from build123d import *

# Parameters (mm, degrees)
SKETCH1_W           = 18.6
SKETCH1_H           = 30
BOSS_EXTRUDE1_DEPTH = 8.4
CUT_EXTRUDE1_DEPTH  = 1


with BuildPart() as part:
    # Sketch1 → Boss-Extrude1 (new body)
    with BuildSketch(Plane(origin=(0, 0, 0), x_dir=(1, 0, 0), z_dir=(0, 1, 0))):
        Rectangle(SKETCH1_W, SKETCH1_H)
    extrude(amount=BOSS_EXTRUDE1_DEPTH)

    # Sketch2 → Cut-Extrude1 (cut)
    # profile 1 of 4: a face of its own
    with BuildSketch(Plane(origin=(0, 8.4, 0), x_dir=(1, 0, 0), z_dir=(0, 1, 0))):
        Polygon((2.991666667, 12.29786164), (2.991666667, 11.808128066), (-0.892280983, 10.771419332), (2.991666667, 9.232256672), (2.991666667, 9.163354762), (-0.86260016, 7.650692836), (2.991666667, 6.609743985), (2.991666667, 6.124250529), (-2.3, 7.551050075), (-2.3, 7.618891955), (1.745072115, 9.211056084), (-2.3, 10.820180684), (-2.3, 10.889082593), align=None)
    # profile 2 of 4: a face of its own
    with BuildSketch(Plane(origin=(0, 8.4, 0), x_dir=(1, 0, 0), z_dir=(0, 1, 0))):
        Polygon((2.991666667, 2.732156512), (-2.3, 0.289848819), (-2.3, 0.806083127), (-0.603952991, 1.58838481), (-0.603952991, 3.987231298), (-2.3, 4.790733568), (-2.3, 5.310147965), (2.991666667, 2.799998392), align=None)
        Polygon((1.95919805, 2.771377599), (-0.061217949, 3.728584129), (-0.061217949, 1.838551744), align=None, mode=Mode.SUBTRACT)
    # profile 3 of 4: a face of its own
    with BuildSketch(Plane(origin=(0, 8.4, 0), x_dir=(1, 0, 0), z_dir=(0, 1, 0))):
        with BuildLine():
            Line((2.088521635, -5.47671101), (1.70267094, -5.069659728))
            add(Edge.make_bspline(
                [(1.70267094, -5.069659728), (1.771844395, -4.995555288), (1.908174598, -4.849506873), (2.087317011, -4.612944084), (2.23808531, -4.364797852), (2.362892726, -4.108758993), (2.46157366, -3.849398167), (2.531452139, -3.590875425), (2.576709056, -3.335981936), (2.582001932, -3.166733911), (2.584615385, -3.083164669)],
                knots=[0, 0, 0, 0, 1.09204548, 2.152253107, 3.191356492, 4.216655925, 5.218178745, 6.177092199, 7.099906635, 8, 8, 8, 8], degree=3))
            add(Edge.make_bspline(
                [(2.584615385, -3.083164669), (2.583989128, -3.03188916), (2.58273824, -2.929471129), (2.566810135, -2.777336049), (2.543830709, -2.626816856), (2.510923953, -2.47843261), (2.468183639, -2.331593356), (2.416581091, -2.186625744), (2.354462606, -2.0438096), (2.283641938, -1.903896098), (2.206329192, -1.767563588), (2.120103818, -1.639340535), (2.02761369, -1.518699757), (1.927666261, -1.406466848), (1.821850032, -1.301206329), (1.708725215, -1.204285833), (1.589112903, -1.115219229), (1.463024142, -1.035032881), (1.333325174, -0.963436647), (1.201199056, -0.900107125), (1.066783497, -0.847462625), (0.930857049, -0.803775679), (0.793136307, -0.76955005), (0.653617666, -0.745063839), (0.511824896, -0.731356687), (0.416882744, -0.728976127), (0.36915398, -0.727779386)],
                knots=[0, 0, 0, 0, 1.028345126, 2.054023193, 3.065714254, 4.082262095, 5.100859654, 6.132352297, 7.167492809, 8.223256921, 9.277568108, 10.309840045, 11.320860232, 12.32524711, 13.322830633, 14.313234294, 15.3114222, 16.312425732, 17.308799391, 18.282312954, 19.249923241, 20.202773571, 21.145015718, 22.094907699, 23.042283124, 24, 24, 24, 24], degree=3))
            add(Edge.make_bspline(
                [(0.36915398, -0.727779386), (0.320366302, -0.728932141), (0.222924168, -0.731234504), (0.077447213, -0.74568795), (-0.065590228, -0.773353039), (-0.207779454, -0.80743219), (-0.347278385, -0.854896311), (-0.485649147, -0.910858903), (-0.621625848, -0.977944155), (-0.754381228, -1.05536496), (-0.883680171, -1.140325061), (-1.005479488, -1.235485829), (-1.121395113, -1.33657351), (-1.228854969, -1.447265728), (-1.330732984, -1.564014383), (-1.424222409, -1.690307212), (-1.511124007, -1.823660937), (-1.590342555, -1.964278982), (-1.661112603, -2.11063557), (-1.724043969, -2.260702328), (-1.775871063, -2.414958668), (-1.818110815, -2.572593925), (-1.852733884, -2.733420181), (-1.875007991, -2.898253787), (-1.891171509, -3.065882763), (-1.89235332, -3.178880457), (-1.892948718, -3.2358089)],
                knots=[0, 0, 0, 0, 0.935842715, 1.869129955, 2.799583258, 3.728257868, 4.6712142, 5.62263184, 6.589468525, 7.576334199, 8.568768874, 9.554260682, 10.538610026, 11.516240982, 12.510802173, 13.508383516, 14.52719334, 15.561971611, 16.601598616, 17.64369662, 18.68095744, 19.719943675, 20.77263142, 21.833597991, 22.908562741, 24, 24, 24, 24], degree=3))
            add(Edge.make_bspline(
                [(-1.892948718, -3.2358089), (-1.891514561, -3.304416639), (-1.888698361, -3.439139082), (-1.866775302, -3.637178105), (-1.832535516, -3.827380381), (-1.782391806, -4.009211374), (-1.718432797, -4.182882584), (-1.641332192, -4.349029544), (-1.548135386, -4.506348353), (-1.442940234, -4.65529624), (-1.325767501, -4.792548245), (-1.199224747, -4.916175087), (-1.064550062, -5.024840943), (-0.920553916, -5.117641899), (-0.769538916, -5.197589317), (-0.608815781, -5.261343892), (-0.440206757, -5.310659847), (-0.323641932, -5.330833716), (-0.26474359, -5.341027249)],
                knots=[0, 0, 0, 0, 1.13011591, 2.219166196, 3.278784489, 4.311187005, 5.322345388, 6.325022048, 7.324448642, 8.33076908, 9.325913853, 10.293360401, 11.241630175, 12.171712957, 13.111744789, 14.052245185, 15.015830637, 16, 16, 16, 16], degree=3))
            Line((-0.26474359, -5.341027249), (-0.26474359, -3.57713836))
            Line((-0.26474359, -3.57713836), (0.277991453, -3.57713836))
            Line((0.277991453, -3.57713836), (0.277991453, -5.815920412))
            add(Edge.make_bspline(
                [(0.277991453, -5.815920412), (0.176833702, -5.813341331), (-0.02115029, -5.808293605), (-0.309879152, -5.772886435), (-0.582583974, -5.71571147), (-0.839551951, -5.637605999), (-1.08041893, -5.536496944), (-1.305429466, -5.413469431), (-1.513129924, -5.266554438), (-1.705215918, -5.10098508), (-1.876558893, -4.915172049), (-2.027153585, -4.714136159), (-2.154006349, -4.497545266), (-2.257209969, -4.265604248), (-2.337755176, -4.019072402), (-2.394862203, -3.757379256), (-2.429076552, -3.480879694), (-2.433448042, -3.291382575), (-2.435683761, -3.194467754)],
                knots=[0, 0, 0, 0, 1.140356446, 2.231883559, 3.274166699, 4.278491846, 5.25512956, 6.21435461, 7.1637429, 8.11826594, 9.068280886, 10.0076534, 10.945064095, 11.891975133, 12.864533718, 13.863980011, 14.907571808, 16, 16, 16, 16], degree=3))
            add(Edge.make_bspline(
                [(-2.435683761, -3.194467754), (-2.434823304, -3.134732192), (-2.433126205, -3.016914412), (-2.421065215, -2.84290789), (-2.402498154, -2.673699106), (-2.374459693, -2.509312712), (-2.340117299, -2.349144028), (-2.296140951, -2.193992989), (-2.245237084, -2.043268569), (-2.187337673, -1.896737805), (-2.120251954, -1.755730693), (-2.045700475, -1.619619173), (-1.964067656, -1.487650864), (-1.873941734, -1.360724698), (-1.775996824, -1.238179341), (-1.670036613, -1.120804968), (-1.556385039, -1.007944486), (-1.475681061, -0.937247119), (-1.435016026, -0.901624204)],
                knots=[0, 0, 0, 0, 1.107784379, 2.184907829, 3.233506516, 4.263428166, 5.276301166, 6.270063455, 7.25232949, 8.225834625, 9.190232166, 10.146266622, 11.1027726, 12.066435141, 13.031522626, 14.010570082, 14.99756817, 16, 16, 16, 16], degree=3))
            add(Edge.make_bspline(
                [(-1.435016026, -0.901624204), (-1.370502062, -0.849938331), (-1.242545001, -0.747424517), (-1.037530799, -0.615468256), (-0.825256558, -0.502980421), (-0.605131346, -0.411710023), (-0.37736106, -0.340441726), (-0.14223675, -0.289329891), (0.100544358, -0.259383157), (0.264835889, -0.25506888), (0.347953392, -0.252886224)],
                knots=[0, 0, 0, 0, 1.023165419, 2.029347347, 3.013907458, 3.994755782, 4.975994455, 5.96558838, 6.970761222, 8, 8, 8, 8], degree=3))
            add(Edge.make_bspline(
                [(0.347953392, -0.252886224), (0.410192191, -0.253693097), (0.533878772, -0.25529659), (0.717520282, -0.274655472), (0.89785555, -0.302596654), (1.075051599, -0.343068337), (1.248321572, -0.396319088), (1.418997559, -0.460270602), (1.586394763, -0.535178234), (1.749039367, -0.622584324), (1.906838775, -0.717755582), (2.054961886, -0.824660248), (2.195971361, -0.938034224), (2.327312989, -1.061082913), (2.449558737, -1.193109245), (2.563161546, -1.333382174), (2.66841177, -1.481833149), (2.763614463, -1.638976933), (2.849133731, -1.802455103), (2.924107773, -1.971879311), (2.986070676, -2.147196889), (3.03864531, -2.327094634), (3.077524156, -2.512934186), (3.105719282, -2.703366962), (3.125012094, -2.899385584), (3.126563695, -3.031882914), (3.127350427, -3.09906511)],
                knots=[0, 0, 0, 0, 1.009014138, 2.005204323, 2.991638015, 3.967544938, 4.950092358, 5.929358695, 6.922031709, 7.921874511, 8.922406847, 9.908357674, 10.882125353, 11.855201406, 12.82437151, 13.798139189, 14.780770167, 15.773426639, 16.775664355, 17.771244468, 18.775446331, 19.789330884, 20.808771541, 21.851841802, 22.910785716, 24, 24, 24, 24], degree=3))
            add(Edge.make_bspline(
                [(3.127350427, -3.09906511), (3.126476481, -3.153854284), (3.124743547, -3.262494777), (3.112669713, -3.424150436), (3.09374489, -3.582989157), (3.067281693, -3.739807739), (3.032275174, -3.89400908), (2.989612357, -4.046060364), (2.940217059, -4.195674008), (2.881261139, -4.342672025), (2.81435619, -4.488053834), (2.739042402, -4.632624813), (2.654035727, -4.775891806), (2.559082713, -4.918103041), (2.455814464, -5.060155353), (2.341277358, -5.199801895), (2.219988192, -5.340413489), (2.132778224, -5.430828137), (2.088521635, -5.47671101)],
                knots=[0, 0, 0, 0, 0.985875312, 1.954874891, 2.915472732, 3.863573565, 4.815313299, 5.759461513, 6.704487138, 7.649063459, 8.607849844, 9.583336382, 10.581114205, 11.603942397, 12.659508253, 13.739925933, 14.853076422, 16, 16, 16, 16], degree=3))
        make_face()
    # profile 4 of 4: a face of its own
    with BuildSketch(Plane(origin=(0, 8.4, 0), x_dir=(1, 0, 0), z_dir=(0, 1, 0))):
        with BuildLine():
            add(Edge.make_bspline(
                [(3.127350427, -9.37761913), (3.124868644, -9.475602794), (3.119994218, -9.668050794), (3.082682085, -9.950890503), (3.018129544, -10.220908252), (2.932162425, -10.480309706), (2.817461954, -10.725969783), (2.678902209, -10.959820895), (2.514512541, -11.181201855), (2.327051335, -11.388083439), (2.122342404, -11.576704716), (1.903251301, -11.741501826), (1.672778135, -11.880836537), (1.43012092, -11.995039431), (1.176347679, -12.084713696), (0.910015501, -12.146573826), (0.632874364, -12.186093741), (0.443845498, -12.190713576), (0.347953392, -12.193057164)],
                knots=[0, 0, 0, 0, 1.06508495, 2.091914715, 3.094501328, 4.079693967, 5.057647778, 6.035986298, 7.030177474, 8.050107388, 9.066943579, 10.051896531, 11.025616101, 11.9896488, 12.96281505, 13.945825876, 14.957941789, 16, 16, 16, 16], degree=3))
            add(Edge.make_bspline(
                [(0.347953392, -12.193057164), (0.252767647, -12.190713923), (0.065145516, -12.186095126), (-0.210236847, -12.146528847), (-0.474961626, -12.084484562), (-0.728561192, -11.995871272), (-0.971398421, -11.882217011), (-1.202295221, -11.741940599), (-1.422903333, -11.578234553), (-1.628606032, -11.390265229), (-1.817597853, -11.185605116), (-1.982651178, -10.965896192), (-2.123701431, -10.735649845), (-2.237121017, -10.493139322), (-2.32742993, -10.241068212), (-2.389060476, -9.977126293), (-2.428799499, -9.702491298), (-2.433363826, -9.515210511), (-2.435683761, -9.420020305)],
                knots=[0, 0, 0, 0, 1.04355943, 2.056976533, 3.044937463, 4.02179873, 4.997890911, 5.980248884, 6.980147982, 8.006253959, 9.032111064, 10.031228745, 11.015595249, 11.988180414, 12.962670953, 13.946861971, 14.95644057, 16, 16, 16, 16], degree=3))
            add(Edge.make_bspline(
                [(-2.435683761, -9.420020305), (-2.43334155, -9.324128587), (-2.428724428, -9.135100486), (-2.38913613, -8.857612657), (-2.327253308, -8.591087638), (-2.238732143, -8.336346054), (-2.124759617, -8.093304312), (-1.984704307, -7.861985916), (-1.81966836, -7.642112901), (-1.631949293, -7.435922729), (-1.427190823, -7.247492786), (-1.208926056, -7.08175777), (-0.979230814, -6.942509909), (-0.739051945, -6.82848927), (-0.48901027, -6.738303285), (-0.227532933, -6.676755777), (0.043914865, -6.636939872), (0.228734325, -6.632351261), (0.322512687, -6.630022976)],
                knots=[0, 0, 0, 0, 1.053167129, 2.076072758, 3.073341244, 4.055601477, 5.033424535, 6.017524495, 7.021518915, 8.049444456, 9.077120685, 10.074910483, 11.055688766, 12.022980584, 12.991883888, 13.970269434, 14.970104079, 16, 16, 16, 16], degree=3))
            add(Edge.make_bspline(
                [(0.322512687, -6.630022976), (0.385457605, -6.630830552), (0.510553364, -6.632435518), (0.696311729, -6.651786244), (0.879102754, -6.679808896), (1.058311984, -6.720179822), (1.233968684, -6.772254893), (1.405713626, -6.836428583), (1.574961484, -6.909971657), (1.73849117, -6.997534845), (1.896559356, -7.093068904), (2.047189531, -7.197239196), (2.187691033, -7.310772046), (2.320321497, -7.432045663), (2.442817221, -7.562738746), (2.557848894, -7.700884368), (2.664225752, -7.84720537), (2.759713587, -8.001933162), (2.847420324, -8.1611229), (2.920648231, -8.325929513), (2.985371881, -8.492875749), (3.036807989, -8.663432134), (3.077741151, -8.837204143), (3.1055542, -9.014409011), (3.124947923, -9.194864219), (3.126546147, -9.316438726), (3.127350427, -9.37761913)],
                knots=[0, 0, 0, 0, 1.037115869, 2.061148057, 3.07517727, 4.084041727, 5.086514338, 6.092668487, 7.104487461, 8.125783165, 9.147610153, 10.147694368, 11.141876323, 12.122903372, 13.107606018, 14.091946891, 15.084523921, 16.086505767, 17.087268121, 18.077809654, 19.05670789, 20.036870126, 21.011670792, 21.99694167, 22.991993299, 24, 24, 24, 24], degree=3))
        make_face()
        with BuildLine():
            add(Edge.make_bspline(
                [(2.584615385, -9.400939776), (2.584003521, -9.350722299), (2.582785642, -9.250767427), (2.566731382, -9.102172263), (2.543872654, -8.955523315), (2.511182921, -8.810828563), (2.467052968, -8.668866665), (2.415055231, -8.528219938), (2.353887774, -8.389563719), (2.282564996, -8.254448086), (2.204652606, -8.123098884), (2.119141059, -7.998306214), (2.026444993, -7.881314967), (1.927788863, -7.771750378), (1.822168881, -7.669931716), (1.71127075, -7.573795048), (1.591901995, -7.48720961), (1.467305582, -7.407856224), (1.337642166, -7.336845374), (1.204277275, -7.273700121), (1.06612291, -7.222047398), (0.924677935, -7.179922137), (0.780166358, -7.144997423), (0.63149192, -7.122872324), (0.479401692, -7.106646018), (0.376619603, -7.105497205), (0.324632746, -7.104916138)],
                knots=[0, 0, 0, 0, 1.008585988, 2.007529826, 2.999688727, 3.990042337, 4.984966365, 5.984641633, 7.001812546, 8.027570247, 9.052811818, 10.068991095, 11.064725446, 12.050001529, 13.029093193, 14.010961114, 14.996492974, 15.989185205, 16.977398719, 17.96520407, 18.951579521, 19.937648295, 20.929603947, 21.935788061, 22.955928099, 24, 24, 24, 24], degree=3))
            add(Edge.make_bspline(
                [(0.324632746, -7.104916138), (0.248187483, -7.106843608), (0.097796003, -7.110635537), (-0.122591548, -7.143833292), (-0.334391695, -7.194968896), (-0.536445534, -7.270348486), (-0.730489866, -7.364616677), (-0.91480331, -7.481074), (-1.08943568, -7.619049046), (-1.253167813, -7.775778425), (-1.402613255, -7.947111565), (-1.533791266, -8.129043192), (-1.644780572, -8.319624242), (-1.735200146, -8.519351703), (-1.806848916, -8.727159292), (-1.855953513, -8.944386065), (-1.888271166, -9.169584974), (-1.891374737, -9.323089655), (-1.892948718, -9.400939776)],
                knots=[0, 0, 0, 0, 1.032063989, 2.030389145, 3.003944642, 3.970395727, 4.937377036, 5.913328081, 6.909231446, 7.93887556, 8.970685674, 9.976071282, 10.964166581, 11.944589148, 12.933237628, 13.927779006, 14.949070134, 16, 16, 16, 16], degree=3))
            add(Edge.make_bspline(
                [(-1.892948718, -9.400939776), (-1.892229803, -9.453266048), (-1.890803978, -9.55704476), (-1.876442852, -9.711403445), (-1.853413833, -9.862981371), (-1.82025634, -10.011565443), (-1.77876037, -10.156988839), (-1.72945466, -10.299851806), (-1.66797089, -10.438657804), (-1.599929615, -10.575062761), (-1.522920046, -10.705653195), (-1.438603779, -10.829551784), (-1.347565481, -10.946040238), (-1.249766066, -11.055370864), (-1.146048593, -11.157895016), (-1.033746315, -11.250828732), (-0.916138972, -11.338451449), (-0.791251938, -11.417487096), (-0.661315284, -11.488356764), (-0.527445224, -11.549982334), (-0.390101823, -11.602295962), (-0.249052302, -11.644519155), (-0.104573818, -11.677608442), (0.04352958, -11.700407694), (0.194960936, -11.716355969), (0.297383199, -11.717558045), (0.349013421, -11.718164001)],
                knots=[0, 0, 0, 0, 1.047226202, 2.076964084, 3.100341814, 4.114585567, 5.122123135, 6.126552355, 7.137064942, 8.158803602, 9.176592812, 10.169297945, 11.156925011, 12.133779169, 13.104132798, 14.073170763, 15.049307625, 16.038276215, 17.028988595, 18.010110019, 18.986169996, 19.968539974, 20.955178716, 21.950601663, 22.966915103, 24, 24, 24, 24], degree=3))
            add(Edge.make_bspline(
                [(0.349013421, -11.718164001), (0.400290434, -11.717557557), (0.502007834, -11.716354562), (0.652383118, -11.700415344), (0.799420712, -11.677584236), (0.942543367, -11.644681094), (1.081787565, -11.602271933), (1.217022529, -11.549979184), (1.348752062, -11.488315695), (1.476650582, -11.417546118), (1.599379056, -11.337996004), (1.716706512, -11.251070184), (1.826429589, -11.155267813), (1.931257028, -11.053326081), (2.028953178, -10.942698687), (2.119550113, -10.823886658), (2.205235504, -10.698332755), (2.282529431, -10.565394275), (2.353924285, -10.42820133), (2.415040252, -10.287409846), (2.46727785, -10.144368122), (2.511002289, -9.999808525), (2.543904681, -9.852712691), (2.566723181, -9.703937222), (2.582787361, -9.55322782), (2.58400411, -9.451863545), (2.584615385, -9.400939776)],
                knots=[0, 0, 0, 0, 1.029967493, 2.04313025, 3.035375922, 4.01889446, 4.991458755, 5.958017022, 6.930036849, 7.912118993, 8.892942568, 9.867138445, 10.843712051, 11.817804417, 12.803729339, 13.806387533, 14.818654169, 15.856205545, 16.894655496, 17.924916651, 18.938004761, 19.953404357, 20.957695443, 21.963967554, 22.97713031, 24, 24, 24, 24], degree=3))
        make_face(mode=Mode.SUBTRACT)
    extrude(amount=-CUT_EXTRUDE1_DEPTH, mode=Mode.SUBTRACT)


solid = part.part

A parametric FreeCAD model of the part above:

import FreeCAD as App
import Part
import Sketcher
Q = App.Units.Quantity

doc = App.newDocument("Part")
body = doc.addObject("PartDesign::Body", "Body")

sketch1 = body.newObject("Sketcher::SketchObject", "Sketch")
sketch1.AttachmentSupport = (doc.getObject("XZ_Plane"), [""])
sketch1.MapMode = "FlatFace"
sketch1.addGeometry(Part.LineSegment(App.Vector(-9, -15, 0), App.Vector(-9, 15, 0)), False)
sketch1.addGeometry(Part.LineSegment(App.Vector(-9, 15, 0), App.Vector(9, 15, 0)), False)
sketch1.addGeometry(Part.LineSegment(App.Vector(9, 15, 0), App.Vector(9, -15, 0)), False)
sketch1.addGeometry(Part.LineSegment(App.Vector(9, -15, 0), App.Vector(-9, -15, 0)), False)
sketch1.addConstraint(Sketcher.Constraint("Coincident", 0, 2, 1, 1))
sketch1.addConstraint(Sketcher.Constraint("Coincident", 1, 2, 2, 1))
sketch1.addConstraint(Sketcher.Constraint("Coincident", 2, 2, 3, 1))
sketch1.addConstraint(Sketcher.Constraint("Coincident", 3, 2, 0, 1))
sketch1.addConstraint(Sketcher.Constraint("Vertical", 0))
sketch1.addConstraint(Sketcher.Constraint("Horizontal", 1))
sketch1.addConstraint(Sketcher.Constraint("Vertical", 2))
sketch1.addConstraint(Sketcher.Constraint("Horizontal", 3))
sketch1.addConstraint(Sketcher.Constraint("Symmetric", 0, 2, 2, 2, -1, 1))
sketch1.addConstraint(Sketcher.Constraint("DistanceY", 0, 1, 0, 2, Q("30 mm")))
sketch1.addConstraint(Sketcher.Constraint("DistanceX", 1, 1, 1, 2, Q("18.6 mm")))
pad1 = body.newObject("PartDesign::Pad", "Pad")
pad1.Profile = sketch1
pad1.Length = 8.4
pad1.Reversed = True

sketch2 = body.newObject("Sketcher::SketchObject", "Sketch001")
sketch2.AttachmentSupport = (doc.getObject("XZ_Plane"), [""])
sketch2.MapMode = "FlatFace"
sketch2.AttachmentOffset = App.Placement(App.Vector(0, 0, -8.4), App.Rotation())
sketch2.addGeometry(Part.LineSegment(App.Vector(2.991667, -11.808128, 0), App.Vector(2.991667, -12.297862, 0)), False)
sketch2.addGeometry(Part.LineSegment(App.Vector(2.991667, -12.297862, 0), App.Vector(-2.3, -10.889083, 0)), False)
sketch2.addGeometry(Part.LineSegment(App.Vector(-2.3, -10.889083, 0), App.Vector(-2.3, -10.820181, 0)), False)
sketch2.addGeometry(Part.LineSegment(App.Vector(-2.3, -10.820181, 0), App.Vector(1.745072, -9.211056, 0)), False)
sketch2.addGeometry(Part.LineSegment(App.Vector(1.745072, -9.211056, 0), App.Vector(-2.3, -7.618892, 0)), False)
sketch2.addGeometry(Part.LineSegment(App.Vector(-2.3, -7.618892, 0), App.Vector(-2.3, -7.55105, 0)), False)
sketch2.addGeometry(Part.LineSegment(App.Vector(-2.3, -7.55105, 0), App.Vector(2.991667, -6.124251, 0)), False)
sketch2.addGeometry(Part.LineSegment(App.Vector(2.991667, -6.124251, 0), App.Vector(2.991667, -6.609744, 0)), False)
sketch2.addGeometry(Part.LineSegment(App.Vector(2.991667, -6.609744, 0), App.Vector(-0.8626, -7.650693, 0)), False)
sketch2.addGeometry(Part.LineSegment(App.Vector(-0.8626, -7.650693, 0), App.Vector(2.991667, -9.163355, 0)), False)
sketch2.addGeometry(Part.LineSegment(App.Vector(2.991667, -9.163355, 0), App.Vector(2.991667, -9.232257, 0)), False)
sketch2.addGeometry(Part.LineSegment(App.Vector(2.991667, -9.232257, 0), App.Vector(-0.892281, -10.771419, 0)), False)
sketch2.addGeometry(Part.LineSegment(App.Vector(-0.892281, -10.771419, 0), App.Vector(2.991667, -11.808128, 0)), False)
sketch2.addGeometry(Part.LineSegment(App.Vector(-2.3, -0.289849, 0), App.Vector(2.991667, -2.732157, 0)), False)
sketch2.addGeometry(Part.LineSegment(App.Vector(2.991667, -2.732157, 0), App.Vector(2.991667, -2.799998, 0)), False)
sketch2.addGeometry(Part.LineSegment(App.Vector(2.991667, -2.799998, 0), App.Vector(-2.3, -5.310148, 0)), False)
sketch2.addGeometry(Part.LineSegment(App.Vector(-2.3, -5.310148, 0), App.Vector(-2.3, -4.790734, 0)), False)
sketch2.addGeometry(Part.LineSegment(App.Vector(-2.3, -4.790734, 0), App.Vector(-0.603953, -3.987231, 0)), False)
sketch2.addGeometry(Part.LineSegment(App.Vector(-0.603953, -3.987231, 0), App.Vector(-0.603953, -1.588385, 0)), False)
sketch2.addGeometry(Part.LineSegment(App.Vector(-0.603953, -1.588385, 0), App.Vector(-2.3, -0.806083, 0)), False)
sketch2.addGeometry(Part.LineSegment(App.Vector(-2.3, -0.806083, 0), App.Vector(-2.3, -0.289849, 0)), False)
sketch2.addGeometry(Part.LineSegment(App.Vector(1.959198, -2.771378, 0), App.Vector(-0.061218, -1.838552, 0)), False)
sketch2.addGeometry(Part.LineSegment(App.Vector(-0.061218, -1.838552, 0), App.Vector(-0.061218, -3.728584, 0)), False)
sketch2.addGeometry(Part.LineSegment(App.Vector(-0.061218, -3.728584, 0), App.Vector(1.959198, -2.771378, 0)), False)
sketch2.addGeometry(Part.LineSegment(App.Vector(1.702671, 5.06966, 0), App.Vector(2.088522, 5.476711, 0)), False)
sketch2.addGeometry(Part.BSplineCurve([App.Vector(3.12735, 3.099065, 0), App.Vector(3.126476, 3.153854, 0), App.Vector(3.124744, 3.262495, 0), App.Vector(3.11267, 3.42415, 0), App.Vector(3.093745, 3.582989, 0), App.Vector(3.067282, 3.739808, 0), App.Vector(3.032275, 3.894009, 0), App.Vector(2.989612, 4.04606, 0), App.Vector(2.940217, 4.195674, 0), App.Vector(2.881261, 4.342672, 0), App.Vector(2.814356, 4.488054, 0), App.Vector(2.739042, 4.632625, 0), App.Vector(2.654036, 4.775892, 0), App.Vector(2.559083, 4.918103, 0), App.Vector(2.455814, 5.060155, 0), App.Vector(2.341277, 5.199802, 0), App.Vector(2.219988, 5.340413, 0), App.Vector(2.132778, 5.430828, 0), App.Vector(2.088522, 5.476711, 0)], [4, 1, 1, 1, 1, 1, 1, 1, 1, 1, 1, 1, 1, 1, 1, 1, 4], [0, 0.985875312, 1.954874891, 2.915472732, 3.863573565, 4.815313299, 5.759461513, 6.704487138, 7.649063459, 8.607849844, 9.583336382, 10.581114205, 11.603942397, 12.659508253, 13.739925933, 14.853076422, 16], False, 3, [1, 1, 1, 1, 1, 1, 1, 1, 1, 1, 1, 1, 1, 1, 1, 1, 1, 1, 1], False), False)
sketch2.addGeometry(Part.BSplineCurve([App.Vector(0.347953, 0.252886, 0), App.Vector(0.410192, 0.253693, 0), App.Vector(0.533879, 0.255297, 0), App.Vector(0.71752, 0.274655, 0), App.Vector(0.897856, 0.302597, 0), App.Vector(1.075052, 0.343068, 0), App.Vector(1.248322, 0.396319, 0), App.Vector(1.418998, 0.460271, 0), App.Vector(1.586395, 0.535178, 0), App.Vector(1.749039, 0.622584, 0), App.Vector(1.906839, 0.717756, 0), App.Vector(2.054962, 0.82466, 0), App.Vector(2.195971, 0.938034, 0), App.Vector(2.327313, 1.061083, 0), App.Vector(2.449559, 1.193109, 0), App.Vector(2.563162, 1.333382, 0), App.Vector(2.668412, 1.481833, 0), App.Vector(2.763614, 1.638977, 0), App.Vector(2.849134, 1.802455, 0), App.Vector(2.924108, 1.971879, 0), App.Vector(2.986071, 2.147197, 0), App.Vector(3.038645, 2.327095, 0), App.Vector(3.077524, 2.512934, 0), App.Vector(3.105719, 2.703367, 0), App.Vector(3.125012, 2.899386, 0), App.Vector(3.126564, 3.031883, 0), App.Vector(3.12735, 3.099065, 0)], [4, 1, 1, 1, 1, 1, 1, 1, 1, 1, 1, 1, 1, 1, 1, 1, 1, 1, 1, 1, 1, 1, 1, 1, 4], [0, 1.009014138, 2.005204323, 2.991638015, 3.967544938, 4.950092358, 5.929358695, 6.922031709, 7.921874511, 8.922406847, 9.908357674, 10.882125353, 11.855201406, 12.82437151, 13.798139189, 14.780770167, 15.773426639, 16.775664355, 17.771244468, 18.775446331, 19.789330884, 20.808771541, 21.851841802, 22.910785716, 24], False, 3, [1, 1, 1, 1, 1, 1, 1, 1, 1, 1, 1, 1, 1, 1, 1, 1, 1, 1, 1, 1, 1, 1, 1, 1, 1, 1, 1], False), False)
sketch2.addGeometry(Part.BSplineCurve([App.Vector(-1.435016, 0.901624, 0), App.Vector(-1.370502, 0.849938, 0), App.Vector(-1.242545, 0.747425, 0), App.Vector(-1.037531, 0.615468, 0), App.Vector(-0.825257, 0.50298, 0), App.Vector(-0.605131, 0.41171, 0), App.Vector(-0.377361, 0.340442, 0), App.Vector(-0.142237, 0.28933, 0), App.Vector(0.100544, 0.259383, 0), App.Vector(0.264836, 0.255069, 0), App.Vector(0.347953, 0.252886, 0)], [4, 1, 1, 1, 1, 1, 1, 1, 4], [0, 1.023165419, 2.029347347, 3.013907458, 3.994755782, 4.975994455, 5.96558838, 6.970761222, 8], False, 3, [1, 1, 1, 1, 1, 1, 1, 1, 1, 1, 1], False), False)
sketch2.addGeometry(Part.BSplineCurve([App.Vector(-2.435684, 3.194468, 0), App.Vector(-2.434823, 3.134732, 0), App.Vector(-2.433126, 3.016914, 0), App.Vector(-2.421065, 2.842908, 0), App.Vector(-2.402498, 2.673699, 0), App.Vector(-2.37446, 2.509313, 0), App.Vector(-2.340117, 2.349144, 0), App.Vector(-2.296141, 2.193993, 0), App.Vector(-2.245237, 2.043269, 0), App.Vector(-2.187338, 1.896738, 0), App.Vector(-2.120252, 1.755731, 0), App.Vector(-2.0457, 1.619619, 0), App.Vector(-1.964068, 1.487651, 0), App.Vector(-1.873942, 1.360725, 0), App.Vector(-1.775997, 1.238179, 0), App.Vector(-1.670037, 1.120805, 0), App.Vector(-1.556385, 1.007944, 0), App.Vector(-1.475681, 0.937247, 0), App.Vector(-1.435016, 0.901624, 0)], [4, 1, 1, 1, 1, 1, 1, 1, 1, 1, 1, 1, 1, 1, 1, 1, 4], [0, 1.107784379, 2.184907829, 3.233506516, 4.263428166, 5.276301166, 6.270063455, 7.25232949, 8.225834625, 9.190232166, 10.146266622, 11.1027726, 12.066435141, 13.031522626, 14.010570082, 14.99756817, 16], False, 3, [1, 1, 1, 1, 1, 1, 1, 1, 1, 1, 1, 1, 1, 1, 1, 1, 1, 1, 1], False), False)
sketch2.addGeometry(Part.BSplineCurve([App.Vector(0.277991, 5.81592, 0), App.Vector(0.176834, 5.813341, 0), App.Vector(-0.02115, 5.808294, 0), App.Vector(-0.309879, 5.772886, 0), App.Vector(-0.582584, 5.715711, 0), App.Vector(-0.839552, 5.637606, 0), App.Vector(-1.080419, 5.536497, 0), App.Vector(-1.305429, 5.413469, 0), App.Vector(-1.51313, 5.266554, 0), App.Vector(-1.705216, 5.100985, 0), App.Vector(-1.876559, 4.915172, 0), App.Vector(-2.027154, 4.714136, 0), App.Vector(-2.154006, 4.497545, 0), App.Vector(-2.25721, 4.265604, 0), App.Vector(-2.337755, 4.019072, 0), App.Vector(-2.394862, 3.757379, 0), App.Vector(-2.429077, 3.48088, 0), App.Vector(-2.433448, 3.291383, 0), App.Vector(-2.435684, 3.194468, 0)], [4, 1, 1, 1, 1, 1, 1, 1, 1, 1, 1, 1, 1, 1, 1, 1, 4], [0, 1.140356446, 2.231883559, 3.274166699, 4.278491846, 5.25512956, 6.21435461, 7.1637429, 8.11826594, 9.068280886, 10.0076534, 10.945064095, 11.891975133, 12.864533718, 13.863980011, 14.907571808, 16], False, 3, [1, 1, 1, 1, 1, 1, 1, 1, 1, 1, 1, 1, 1, 1, 1, 1, 1, 1, 1], False), False)
sketch2.addGeometry(Part.LineSegment(App.Vector(0.277991, 5.81592, 0), App.Vector(0.277991, 3.577138, 0)), False)
sketch2.addGeometry(Part.LineSegment(App.Vector(0.277991, 3.577138, 0), App.Vector(-0.264744, 3.577138, 0)), False)
sketch2.addGeometry(Part.LineSegment(App.Vector(-0.264744, 3.577138, 0), App.Vector(-0.264744, 5.341027, 0)), False)
sketch2.addGeometry(Part.BSplineCurve([App.Vector(-1.892949, 3.235809, 0), App.Vector(-1.891515, 3.304417, 0), App.Vector(-1.888698, 3.439139, 0), App.Vector(-1.866775, 3.637178, 0), App.Vector(-1.832536, 3.82738, 0), App.Vector(-1.782392, 4.009211, 0), App.Vector(-1.718433, 4.182883, 0), App.Vector(-1.641332, 4.34903, 0), App.Vector(-1.548135, 4.506348, 0), App.Vector(-1.44294, 4.655296, 0), App.Vector(-1.325768, 4.792548, 0), App.Vector(-1.199225, 4.916175, 0), App.Vector(-1.06455, 5.024841, 0), App.Vector(-0.920554, 5.117642, 0), App.Vector(-0.769539, 5.197589, 0), App.Vector(-0.608816, 5.261344, 0), App.Vector(-0.440207, 5.31066, 0), App.Vector(-0.323642, 5.330834, 0), App.Vector(-0.264744, 5.341027, 0)], [4, 1, 1, 1, 1, 1, 1, 1, 1, 1, 1, 1, 1, 1, 1, 1, 4], [0, 1.13011591, 2.219166196, 3.278784489, 4.311187005, 5.322345388, 6.325022048, 7.324448642, 8.33076908, 9.325913853, 10.293360401, 11.241630175, 12.171712957, 13.111744789, 14.052245185, 15.015830637, 16], False, 3, [1, 1, 1, 1, 1, 1, 1, 1, 1, 1, 1, 1, 1, 1, 1, 1, 1, 1, 1], False), False)
sketch2.addGeometry(Part.BSplineCurve([App.Vector(0.369154, 0.727779, 0), App.Vector(0.320366, 0.728932, 0), App.Vector(0.222924, 0.731235, 0), App.Vector(0.077447, 0.745688, 0), App.Vector(-0.06559, 0.773353, 0), App.Vector(-0.207779, 0.807432, 0), App.Vector(-0.347278, 0.854896, 0), App.Vector(-0.485649, 0.910859, 0), App.Vector(-0.621626, 0.977944, 0), App.Vector(-0.754381, 1.055365, 0), App.Vector(-0.88368, 1.140325, 0), App.Vector(-1.005479, 1.235486, 0), App.Vector(-1.121395, 1.336574, 0), App.Vector(-1.228855, 1.447266, 0), App.Vector(-1.330733, 1.564014, 0), App.Vector(-1.424222, 1.690307, 0), App.Vector(-1.511124, 1.823661, 0), App.Vector(-1.590343, 1.964279, 0), App.Vector(-1.661113, 2.110636, 0), App.Vector(-1.724044, 2.260702, 0), App.Vector(-1.775871, 2.414959, 0), App.Vector(-1.818111, 2.572594, 0), App.Vector(-1.852734, 2.73342, 0), App.Vector(-1.875008, 2.898254, 0), App.Vector(-1.891172, 3.065883, 0), App.Vector(-1.892353, 3.17888, 0), App.Vector(-1.892949, 3.235809, 0)], [4, 1, 1, 1, 1, 1, 1, 1, 1, 1, 1, 1, 1, 1, 1, 1, 1, 1, 1, 1, 1, 1, 1, 1, 4], [0, 0.935842715, 1.869129955, 2.799583258, 3.728257868, 4.6712142, 5.62263184, 6.589468525, 7.576334199, 8.568768874, 9.554260682, 10.538610026, 11.516240982, 12.510802173, 13.508383516, 14.52719334, 15.561971611, 16.601598616, 17.64369662, 18.68095744, 19.719943675, 20.77263142, 21.833597991, 22.908562741, 24], False, 3, [1, 1, 1, 1, 1, 1, 1, 1, 1, 1, 1, 1, 1, 1, 1, 1, 1, 1, 1, 1, 1, 1, 1, 1, 1, 1, 1], False), False)
sketch2.addGeometry(Part.BSplineCurve([App.Vector(2.584615, 3.083165, 0), App.Vector(2.583989, 3.031889, 0), App.Vector(2.582738, 2.929471, 0), App.Vector(2.56681, 2.777336, 0), App.Vector(2.543831, 2.626817, 0), App.Vector(2.510924, 2.478433, 0), App.Vector(2.468184, 2.331593, 0), App.Vector(2.416581, 2.186626, 0), App.Vector(2.354463, 2.04381, 0), App.Vector(2.283642, 1.903896, 0), App.Vector(2.206329, 1.767564, 0), App.Vector(2.120104, 1.639341, 0), App.Vector(2.027614, 1.5187, 0), App.Vector(1.927666, 1.406467, 0), App.Vector(1.82185, 1.301206, 0), App.Vector(1.708725, 1.204286, 0), App.Vector(1.589113, 1.115219, 0), App.Vector(1.463024, 1.035033, 0), App.Vector(1.333325, 0.963437, 0), App.Vector(1.201199, 0.900107, 0), App.Vector(1.066783, 0.847463, 0), App.Vector(0.930857, 0.803776, 0), App.Vector(0.793136, 0.76955, 0), App.Vector(0.653618, 0.745064, 0), App.Vector(0.511825, 0.731357, 0), App.Vector(0.416883, 0.728976, 0), App.Vector(0.369154, 0.727779, 0)], [4, 1, 1, 1, 1, 1, 1, 1, 1, 1, 1, 1, 1, 1, 1, 1, 1, 1, 1, 1, 1, 1, 1, 1, 4], [0, 1.028345126, 2.054023193, 3.065714254, 4.082262095, 5.100859654, 6.132352297, 7.167492809, 8.223256921, 9.277568108, 10.309840045, 11.320860232, 12.32524711, 13.322830633, 14.313234294, 15.3114222, 16.312425732, 17.308799391, 18.282312954, 19.249923241, 20.202773571, 21.145015718, 22.094907699, 23.042283124, 24], False, 3, [1, 1, 1, 1, 1, 1, 1, 1, 1, 1, 1, 1, 1, 1, 1, 1, 1, 1, 1, 1, 1, 1, 1, 1, 1, 1, 1], False), False)
sketch2.addGeometry(Part.BSplineCurve([App.Vector(1.702671, 5.06966, 0), App.Vector(1.771844, 4.995555, 0), App.Vector(1.908175, 4.849507, 0), App.Vector(2.087317, 4.612944, 0), App.Vector(2.238085, 4.364798, 0), App.Vector(2.362893, 4.108759, 0), App.Vector(2.461574, 3.849398, 0), App.Vector(2.531452, 3.590875, 0), App.Vector(2.576709, 3.335982, 0), App.Vector(2.582002, 3.166734, 0), App.Vector(2.584615, 3.083165, 0)], [4, 1, 1, 1, 1, 1, 1, 1, 4], [0, 1.09204548, 2.152253107, 3.191356492, 4.216655925, 5.218178745, 6.177092199, 7.099906635, 8], False, 3, [1, 1, 1, 1, 1, 1, 1, 1, 1, 1, 1], False), False)
sketch2.addGeometry(Part.BSplineCurve([App.Vector(3.12735, 9.377619, 0), App.Vector(3.124869, 9.475603, 0), App.Vector(3.119994, 9.668051, 0), App.Vector(3.082682, 9.950891, 0), App.Vector(3.01813, 10.220908, 0), App.Vector(2.932162, 10.48031, 0), App.Vector(2.817462, 10.72597, 0), App.Vector(2.678902, 10.959821, 0), App.Vector(2.514513, 11.181202, 0), App.Vector(2.327051, 11.388083, 0), App.Vector(2.122342, 11.576705, 0), App.Vector(1.903251, 11.741502, 0), App.Vector(1.672778, 11.880837, 0), App.Vector(1.430121, 11.995039, 0), App.Vector(1.176348, 12.084714, 0), App.Vector(0.910016, 12.146574, 0), App.Vector(0.632874, 12.186094, 0), App.Vector(0.443845, 12.190714, 0), App.Vector(0.347953, 12.193057, 0)], [4, 1, 1, 1, 1, 1, 1, 1, 1, 1, 1, 1, 1, 1, 1, 1, 4], [0, 1.06508495, 2.091914715, 3.094501328, 4.079693967, 5.057647778, 6.035986298, 7.030177474, 8.050107388, 9.066943579, 10.051896531, 11.025616101, 11.9896488, 12.96281505, 13.945825876, 14.957941789, 16], False, 3, [1, 1, 1, 1, 1, 1, 1, 1, 1, 1, 1, 1, 1, 1, 1, 1, 1, 1, 1], False), False)
sketch2.addGeometry(Part.BSplineCurve([App.Vector(0.322513, 6.630023, 0), App.Vector(0.385458, 6.630831, 0), App.Vector(0.510553, 6.632436, 0), App.Vector(0.696312, 6.651786, 0), App.Vector(0.879103, 6.679809, 0), App.Vector(1.058312, 6.72018, 0), App.Vector(1.233969, 6.772255, 0), App.Vector(1.405714, 6.836429, 0), App.Vector(1.574961, 6.909972, 0), App.Vector(1.738491, 6.997535, 0), App.Vector(1.896559, 7.093069, 0), App.Vector(2.04719, 7.197239, 0), App.Vector(2.187691, 7.310772, 0), App.Vector(2.320321, 7.432046, 0), App.Vector(2.442817, 7.562739, 0), App.Vector(2.557849, 7.700884, 0), App.Vector(2.664226, 7.847205, 0), App.Vector(2.759714, 8.001933, 0), App.Vector(2.84742, 8.161123, 0), App.Vector(2.920648, 8.32593, 0), App.Vector(2.985372, 8.492876, 0), App.Vector(3.036808, 8.663432, 0), App.Vector(3.077741, 8.837204, 0), App.Vector(3.105554, 9.014409, 0), App.Vector(3.124948, 9.194864, 0), App.Vector(3.126546, 9.316439, 0), App.Vector(3.12735, 9.377619, 0)], [4, 1, 1, 1, 1, 1, 1, 1, 1, 1, 1, 1, 1, 1, 1, 1, 1, 1, 1, 1, 1, 1, 1, 1, 4], [0, 1.037115869, 2.061148057, 3.07517727, 4.084041727, 5.086514338, 6.092668487, 7.104487461, 8.125783165, 9.147610153, 10.147694368, 11.141876323, 12.122903372, 13.107606018, 14.091946891, 15.084523921, 16.086505767, 17.087268121, 18.077809654, 19.05670789, 20.036870126, 21.011670792, 21.99694167, 22.991993299, 24], False, 3, [1, 1, 1, 1, 1, 1, 1, 1, 1, 1, 1, 1, 1, 1, 1, 1, 1, 1, 1, 1, 1, 1, 1, 1, 1, 1, 1], False), False)
sketch2.addGeometry(Part.BSplineCurve([App.Vector(-2.435684, 9.42002, 0), App.Vector(-2.433342, 9.324129, 0), App.Vector(-2.428724, 9.1351, 0), App.Vector(-2.389136, 8.857613, 0), App.Vector(-2.327253, 8.591088, 0), App.Vector(-2.238732, 8.336346, 0), App.Vector(-2.12476, 8.093304, 0), App.Vector(-1.984704, 7.861986, 0), App.Vector(-1.819668, 7.642113, 0), App.Vector(-1.631949, 7.435923, 0), App.Vector(-1.427191, 7.247493, 0), App.Vector(-1.208926, 7.081758, 0), App.Vector(-0.979231, 6.94251, 0), App.Vector(-0.739052, 6.828489, 0), App.Vector(-0.48901, 6.738303, 0), App.Vector(-0.227533, 6.676756, 0), App.Vector(0.043915, 6.63694, 0), App.Vector(0.228734, 6.632351, 0), App.Vector(0.322513, 6.630023, 0)], [4, 1, 1, 1, 1, 1, 1, 1, 1, 1, 1, 1, 1, 1, 1, 1, 4], [0, 1.053167129, 2.076072758, 3.073341244, 4.055601477, 5.033424535, 6.017524495, 7.021518915, 8.049444456, 9.077120685, 10.074910483, 11.055688766, 12.022980584, 12.991883888, 13.970269434, 14.970104079, 16], False, 3, [1, 1, 1, 1, 1, 1, 1, 1, 1, 1, 1, 1, 1, 1, 1, 1, 1, 1, 1], False), False)
sketch2.addGeometry(Part.BSplineCurve([App.Vector(0.347953, 12.193057, 0), App.Vector(0.252768, 12.190714, 0), App.Vector(0.065146, 12.186095, 0), App.Vector(-0.210237, 12.146529, 0), App.Vector(-0.474962, 12.084485, 0), App.Vector(-0.728561, 11.995871, 0), App.Vector(-0.971398, 11.882217, 0), App.Vector(-1.202295, 11.741941, 0), App.Vector(-1.422903, 11.578235, 0), App.Vector(-1.628606, 11.390265, 0), App.Vector(-1.817598, 11.185605, 0), App.Vector(-1.982651, 10.965896, 0), App.Vector(-2.123701, 10.73565, 0), App.Vector(-2.237121, 10.493139, 0), App.Vector(-2.32743, 10.241068, 0), App.Vector(-2.38906, 9.977126, 0), App.Vector(-2.428799, 9.702491, 0), App.Vector(-2.433364, 9.515211, 0), App.Vector(-2.435684, 9.42002, 0)], [4, 1, 1, 1, 1, 1, 1, 1, 1, 1, 1, 1, 1, 1, 1, 1, 4], [0, 1.04355943, 2.056976533, 3.044937463, 4.02179873, 4.997890911, 5.980248884, 6.980147982, 8.006253959, 9.032111064, 10.031228745, 11.015595249, 11.988180414, 12.962670953, 13.946861971, 14.95644057, 16], False, 3, [1, 1, 1, 1, 1, 1, 1, 1, 1, 1, 1, 1, 1, 1, 1, 1, 1, 1, 1], False), False)
sketch2.addGeometry(Part.BSplineCurve([App.Vector(0.349013, 11.718164, 0), App.Vector(0.40029, 11.717558, 0), App.Vector(0.502008, 11.716355, 0), App.Vector(0.652383, 11.700415, 0), App.Vector(0.799421, 11.677584, 0), App.Vector(0.942543, 11.644681, 0), App.Vector(1.081788, 11.602272, 0), App.Vector(1.217023, 11.549979, 0), App.Vector(1.348752, 11.488316, 0), App.Vector(1.476651, 11.417546, 0), App.Vector(1.599379, 11.337996, 0), App.Vector(1.716707, 11.25107, 0), App.Vector(1.82643, 11.155268, 0), App.Vector(1.931257, 11.053326, 0), App.Vector(2.028953, 10.942699, 0), App.Vector(2.11955, 10.823887, 0), App.Vector(2.205236, 10.698333, 0), App.Vector(2.282529, 10.565394, 0), App.Vector(2.353924, 10.428201, 0), App.Vector(2.41504, 10.28741, 0), App.Vector(2.467278, 10.144368, 0), App.Vector(2.511002, 9.999809, 0), App.Vector(2.543905, 9.852713, 0), App.Vector(2.566723, 9.703937, 0), App.Vector(2.582787, 9.553228, 0), App.Vector(2.584004, 9.451864, 0), App.Vector(2.584615, 9.40094, 0)], [4, 1, 1, 1, 1, 1, 1, 1, 1, 1, 1, 1, 1, 1, 1, 1, 1, 1, 1, 1, 1, 1, 1, 1, 4], [0, 1.029967493, 2.04313025, 3.035375922, 4.01889446, 4.991458755, 5.958017022, 6.930036849, 7.912118993, 8.892942568, 9.867138445, 10.843712051, 11.817804417, 12.803729339, 13.806387533, 14.818654169, 15.856205545, 16.894655496, 17.924916651, 18.938004761, 19.953404357, 20.957695443, 21.963967554, 22.97713031, 24], False, 3, [1, 1, 1, 1, 1, 1, 1, 1, 1, 1, 1, 1, 1, 1, 1, 1, 1, 1, 1, 1, 1, 1, 1, 1, 1, 1, 1], False), False)
sketch2.addGeometry(Part.BSplineCurve([App.Vector(-1.892949, 9.40094, 0), App.Vector(-1.89223, 9.453266, 0), App.Vector(-1.890804, 9.557045, 0), App.Vector(-1.876443, 9.711403, 0), App.Vector(-1.853414, 9.862981, 0), App.Vector(-1.820256, 10.011565, 0), App.Vector(-1.77876, 10.156989, 0), App.Vector(-1.729455, 10.299852, 0), App.Vector(-1.667971, 10.438658, 0), App.Vector(-1.59993, 10.575063, 0), App.Vector(-1.52292, 10.705653, 0), App.Vector(-1.438604, 10.829552, 0), App.Vector(-1.347565, 10.94604, 0), App.Vector(-1.249766, 11.055371, 0), App.Vector(-1.146049, 11.157895, 0), App.Vector(-1.033746, 11.250829, 0), App.Vector(-0.916139, 11.338451, 0), App.Vector(-0.791252, 11.417487, 0), App.Vector(-0.661315, 11.488357, 0), App.Vector(-0.527445, 11.549982, 0), App.Vector(-0.390102, 11.602296, 0), App.Vector(-0.249052, 11.644519, 0), App.Vector(-0.104574, 11.677608, 0), App.Vector(0.04353, 11.700408, 0), App.Vector(0.194961, 11.716356, 0), App.Vector(0.297383, 11.717558, 0), App.Vector(0.349013, 11.718164, 0)], [4, 1, 1, 1, 1, 1, 1, 1, 1, 1, 1, 1, 1, 1, 1, 1, 1, 1, 1, 1, 1, 1, 1, 1, 4], [0, 1.047226202, 2.076964084, 3.100341814, 4.114585567, 5.122123135, 6.126552355, 7.137064942, 8.158803602, 9.176592812, 10.169297945, 11.156925011, 12.133779169, 13.104132798, 14.073170763, 15.049307625, 16.038276215, 17.028988595, 18.010110019, 18.986169996, 19.968539974, 20.955178716, 21.950601663, 22.966915103, 24], False, 3, [1, 1, 1, 1, 1, 1, 1, 1, 1, 1, 1, 1, 1, 1, 1, 1, 1, 1, 1, 1, 1, 1, 1, 1, 1, 1, 1], False), False)
sketch2.addGeometry(Part.BSplineCurve([App.Vector(0.324633, 7.104916, 0), App.Vector(0.248187, 7.106844, 0), App.Vector(0.097796, 7.110636, 0), App.Vector(-0.122592, 7.143833, 0), App.Vector(-0.334392, 7.194969, 0), App.Vector(-0.536446, 7.270348, 0), App.Vector(-0.73049, 7.364617, 0), App.Vector(-0.914803, 7.481074, 0), App.Vector(-1.089436, 7.619049, 0), App.Vector(-1.253168, 7.775778, 0), App.Vector(-1.402613, 7.947112, 0), App.Vector(-1.533791, 8.129043, 0), App.Vector(-1.644781, 8.319624, 0), App.Vector(-1.7352, 8.519352, 0), App.Vector(-1.806849, 8.727159, 0), App.Vector(-1.855954, 8.944386, 0), App.Vector(-1.888271, 9.169585, 0), App.Vector(-1.891375, 9.32309, 0), App.Vector(-1.892949, 9.40094, 0)], [4, 1, 1, 1, 1, 1, 1, 1, 1, 1, 1, 1, 1, 1, 1, 1, 4], [0, 1.032063989, 2.030389145, 3.003944642, 3.970395727, 4.937377036, 5.913328081, 6.909231446, 7.93887556, 8.970685674, 9.976071282, 10.964166581, 11.944589148, 12.933237628, 13.927779006, 14.949070134, 16], False, 3, [1, 1, 1, 1, 1, 1, 1, 1, 1, 1, 1, 1, 1, 1, 1, 1, 1, 1, 1], False), False)
sketch2.addGeometry(Part.BSplineCurve([App.Vector(2.584615, 9.40094, 0), App.Vector(2.584004, 9.350722, 0), App.Vector(2.582786, 9.250767, 0), App.Vector(2.566731, 9.102172, 0), App.Vector(2.543873, 8.955523, 0), App.Vector(2.511183, 8.810829, 0), App.Vector(2.467053, 8.668867, 0), App.Vector(2.415055, 8.52822, 0), App.Vector(2.353888, 8.389564, 0), App.Vector(2.282565, 8.254448, 0), App.Vector(2.204653, 8.123099, 0), App.Vector(2.119141, 7.998306, 0), App.Vector(2.026445, 7.881315, 0), App.Vector(1.927789, 7.77175, 0), App.Vector(1.822169, 7.669932, 0), App.Vector(1.711271, 7.573795, 0), App.Vector(1.591902, 7.48721, 0), App.Vector(1.467306, 7.407856, 0), App.Vector(1.337642, 7.336845, 0), App.Vector(1.204277, 7.2737, 0), App.Vector(1.066123, 7.222047, 0), App.Vector(0.924678, 7.179922, 0), App.Vector(0.780166, 7.144997, 0), App.Vector(0.631492, 7.122872, 0), App.Vector(0.479402, 7.106646, 0), App.Vector(0.37662, 7.105497, 0), App.Vector(0.324633, 7.104916, 0)], [4, 1, 1, 1, 1, 1, 1, 1, 1, 1, 1, 1, 1, 1, 1, 1, 1, 1, 1, 1, 1, 1, 1, 1, 4], [0, 1.008585988, 2.007529826, 2.999688727, 3.990042337, 4.984966365, 5.984641633, 7.001812546, 8.027570247, 9.052811818, 10.068991095, 11.064725446, 12.050001529, 13.029093193, 14.010961114, 14.996492974, 15.989185205, 16.977398719, 17.96520407, 18.951579521, 19.937648295, 20.929603947, 21.935788061, 22.955928099, 24], False, 3, [1, 1, 1, 1, 1, 1, 1, 1, 1, 1, 1, 1, 1, 1, 1, 1, 1, 1, 1, 1, 1, 1, 1, 1, 1, 1, 1], False), False)
sketch2.addConstraint(Sketcher.Constraint("Block", 25))
sketch2.addConstraint(Sketcher.Constraint("Block", 26))
sketch2.addConstraint(Sketcher.Constraint("Block", 27))
sketch2.addConstraint(Sketcher.Constraint("Block", 28))
sketch2.addConstraint(Sketcher.Constraint("Block", 29))
sketch2.addConstraint(Sketcher.Constraint("Block", 33))
sketch2.addConstraint(Sketcher.Constraint("Block", 34))
sketch2.addConstraint(Sketcher.Constraint("Block", 35))
sketch2.addConstraint(Sketcher.Constraint("Block", 36))
sketch2.addConstraint(Sketcher.Constraint("Block", 37))
sketch2.addConstraint(Sketcher.Constraint("Block", 38))
sketch2.addConstraint(Sketcher.Constraint("Block", 39))
sketch2.addConstraint(Sketcher.Constraint("Block", 40))
sketch2.addConstraint(Sketcher.Constraint("Block", 41))
sketch2.addConstraint(Sketcher.Constraint("Block", 42))
sketch2.addConstraint(Sketcher.Constraint("Block", 43))
sketch2.addConstraint(Sketcher.Constraint("Block", 44))
sketch2.addConstraint(Sketcher.Constraint("Coincident", 0, 2, 1, 1))
sketch2.addConstraint(Sketcher.Constraint("Coincident", 1, 2, 2, 1))
sketch2.addConstraint(Sketcher.Constraint("Coincident", 2, 2, 3, 1))
sketch2.addConstraint(Sketcher.Constraint("Coincident", 3, 2, 4, 1))
sketch2.addConstraint(Sketcher.Constraint("Coincident", 4, 2, 5, 1))
sketch2.addConstraint(Sketcher.Constraint("Coincident", 5, 2, 6, 1))
sketch2.addConstraint(Sketcher.Constraint("Coincident", 6, 2, 7, 1))
sketch2.addConstraint(Sketcher.Constraint("Coincident", 7, 2, 8, 1))
sketch2.addConstraint(Sketcher.Constraint("Coincident", 8, 2, 9, 1))
sketch2.addConstraint(Sketcher.Constraint("Coincident", 9, 2, 10, 1))
sketch2.addConstraint(Sketcher.Constraint("Coincident", 10, 2, 11, 1))
sketch2.addConstraint(Sketcher.Constraint("Coincident", 11, 2, 12, 1))
sketch2.addConstraint(Sketcher.Constraint("Coincident", 12, 2, 0, 1))
sketch2.addConstraint(Sketcher.Constraint("Coincident", 13, 2, 14, 1))
sketch2.addConstraint(Sketcher.Constraint("Coincident", 14, 2, 15, 1))
sketch2.addConstraint(Sketcher.Constraint("Coincident", 15, 2, 16, 1))
sketch2.addConstraint(Sketcher.Constraint("Coincident", 16, 2, 17, 1))
sketch2.addConstraint(Sketcher.Constraint("Coincident", 17, 2, 18, 1))
sketch2.addConstraint(Sketcher.Constraint("Coincident", 18, 2, 19, 1))
sketch2.addConstraint(Sketcher.Constraint("Coincident", 19, 2, 20, 1))
sketch2.addConstraint(Sketcher.Constraint("Coincident", 20, 2, 13, 1))
sketch2.addConstraint(Sketcher.Constraint("Coincident", 21, 2, 22, 1))
sketch2.addConstraint(Sketcher.Constraint("Coincident", 22, 2, 23, 1))
sketch2.addConstraint(Sketcher.Constraint("Coincident", 23, 2, 21, 1))
sketch2.addConstraint(Sketcher.Constraint("Coincident", 24, 2, 25, 2))
sketch2.addConstraint(Sketcher.Constraint("Coincident", 29, 1, 30, 1))
sketch2.addConstraint(Sketcher.Constraint("Coincident", 30, 2, 31, 1))
sketch2.addConstraint(Sketcher.Constraint("Coincident", 31, 2, 32, 1))
sketch2.addConstraint(Sketcher.Constraint("Coincident", 32, 2, 33, 2))
sketch2.addConstraint(Sketcher.Constraint("Coincident", 36, 1, 24, 1))
sketch2.addConstraint(Sketcher.Constraint("Vertical", 0))
sketch2.addConstraint(Sketcher.Constraint("Vertical", 2))
sketch2.addConstraint(Sketcher.Constraint("Vertical", 5))
sketch2.addConstraint(Sketcher.Constraint("Vertical", 7))
sketch2.addConstraint(Sketcher.Constraint("Vertical", 10))
sketch2.addConstraint(Sketcher.Constraint("Vertical", 14))
sketch2.addConstraint(Sketcher.Constraint("Vertical", 16))
sketch2.addConstraint(Sketcher.Constraint("Vertical", 18))
sketch2.addConstraint(Sketcher.Constraint("Vertical", 20))
sketch2.addConstraint(Sketcher.Constraint("Vertical", 22))
sketch2.addConstraint(Sketcher.Constraint("Vertical", 30))
sketch2.addConstraint(Sketcher.Constraint("Horizontal", 31))
sketch2.addConstraint(Sketcher.Constraint("Vertical", 32))
sketch2.addConstraint(Sketcher.Constraint("Vertical", 2, 2, 4, 2))
sketch2.addConstraint(Sketcher.Constraint("Vertical", 0, 2, 6, 2))
sketch2.addConstraint(Sketcher.Constraint("Vertical", 7, 2, 9, 2))
sketch2.addConstraint(Sketcher.Constraint("Vertical", 12, 2, 13, 2))
sketch2.addConstraint(Sketcher.Constraint("Vertical", 5, 2, 15, 2))
sketch2.addConstraint(Sketcher.Constraint("Vertical", 16, 2, 19, 2))
sketch2.addConstraint(Sketcher.Constraint("Equal", 2, 10))
sketch2.addConstraint(Sketcher.Constraint("Equal", 5, 14))
sketch2.addConstraint(Sketcher.Constraint("DistanceX", 1, 2, -1, 1, Q("2.3 mm")))
sketch2.addConstraint(Sketcher.Constraint("DistanceY", 14, 2, -1, 1, Q("2.799998 mm")))
sketch2.addConstraint(Sketcher.Constraint("DistanceY", 2, 1, 2, 2, Q("0.068902 mm")))
sketch2.addConstraint(Sketcher.Constraint("DistanceY", 5, 1, 5, 2, Q("0.067842 mm")))
sketch2.addConstraint(Sketcher.Constraint("DistanceY", 32, 1, 32, 2, Q("1.763889 mm")))
sketch2.addConstraint(Sketcher.Constraint("DistanceX", 8, 2, -1, 1, Q("0.8626 mm")))
sketch2.addConstraint(Sketcher.Constraint("DistanceX", -1, 1, 23, 2, Q("1.959198 mm")))
sketch2.addConstraint(Sketcher.Constraint("DistanceY", 5, 2, 6, 2, Q("1.4268 mm")))
sketch2.addConstraint(Sketcher.Constraint("DistanceY", 8, 2, 4, 2, Q("0.031801 mm")))
sketch2.addConstraint(Sketcher.Constraint("DistanceY", 3, 2, 9, 2, Q("0.047701 mm")))
sketch2.addConstraint(Sketcher.Constraint("DistanceY", 9, 2, 13, 2, Q("6.431198 mm")))
sketch2.addConstraint(Sketcher.Constraint("DistanceY", 18, 2, 19, 2, Q("0.782302 mm")))
sketch2.addConstraint(Sketcher.Constraint("DistanceY", 15, 2, 20, 2, Q("5.020299 mm")))
sketch2.addConstraint(Sketcher.Constraint("DistanceY", 22, 2, 18, 2, Q("2.140199 mm")))
sketch2.addConstraint(Sketcher.Constraint("Distance", 8, Q("3.992361 mm")))
sketch2.addConstraint(Sketcher.Constraint("Distance", 15, Q("5.856841 mm")))
sketch2.addConstraint(Sketcher.Constraint("Distance", 17, Q("1.87675 mm")))
sketch2.addConstraint(Sketcher.Constraint("Distance", 19, Q("1.867772 mm")))
sketch2.addConstraint(Sketcher.Constraint("DistanceY", 0, 2, 0, 1, Q("0.489734 mm")))
sketch2.addConstraint(Sketcher.Constraint("DistanceY", 7, 2, 7, 1, Q("0.485493 mm")))
sketch2.addConstraint(Sketcher.Constraint("DistanceY", 16, 1, 16, 2, Q("0.519414 mm")))
sketch2.addConstraint(Sketcher.Constraint("DistanceY", 18, 1, 18, 2, Q("2.398846 mm")))
sketch2.addConstraint(Sketcher.Constraint("DistanceY", 22, 2, 22, 1, Q("1.890032 mm")))
sketch2.addConstraint(Sketcher.Constraint("DistanceY", 0, 2, -1, 1, Q("12.297862 mm")))
sketch2.addConstraint(Sketcher.Constraint("DistanceY", 2, 2, -1, 1, Q("10.820181 mm")))
sketch2.addConstraint(Sketcher.Constraint("DistanceY", 4, 2, -1, 1, Q("7.618892 mm")))
sketch2.addConstraint(Sketcher.Constraint("DistanceX", 11, 2, -1, 1, Q("0.892281 mm")))
sketch2.addConstraint(Sketcher.Constraint("DistanceY", 11, 2, -1, 1, Q("10.771419 mm")))
sketch2.addConstraint(Sketcher.Constraint("DistanceY", 14, 2, 23, 2, Q("0.028621 mm")))
sketch2.addConstraint(Sketcher.Constraint("DistanceX", 21, 2, 24, 2, Q("2.14974 mm")))
sketch2.addConstraint(Sketcher.Constraint("Distance", 3, Q("4.353377 mm")))
pocket1 = body.newObject("PartDesign::Pocket", "Pocket")
pocket1.Profile = sketch2
pocket1.Length = 1
pocket1.Reversed = True

doc.recompute()
